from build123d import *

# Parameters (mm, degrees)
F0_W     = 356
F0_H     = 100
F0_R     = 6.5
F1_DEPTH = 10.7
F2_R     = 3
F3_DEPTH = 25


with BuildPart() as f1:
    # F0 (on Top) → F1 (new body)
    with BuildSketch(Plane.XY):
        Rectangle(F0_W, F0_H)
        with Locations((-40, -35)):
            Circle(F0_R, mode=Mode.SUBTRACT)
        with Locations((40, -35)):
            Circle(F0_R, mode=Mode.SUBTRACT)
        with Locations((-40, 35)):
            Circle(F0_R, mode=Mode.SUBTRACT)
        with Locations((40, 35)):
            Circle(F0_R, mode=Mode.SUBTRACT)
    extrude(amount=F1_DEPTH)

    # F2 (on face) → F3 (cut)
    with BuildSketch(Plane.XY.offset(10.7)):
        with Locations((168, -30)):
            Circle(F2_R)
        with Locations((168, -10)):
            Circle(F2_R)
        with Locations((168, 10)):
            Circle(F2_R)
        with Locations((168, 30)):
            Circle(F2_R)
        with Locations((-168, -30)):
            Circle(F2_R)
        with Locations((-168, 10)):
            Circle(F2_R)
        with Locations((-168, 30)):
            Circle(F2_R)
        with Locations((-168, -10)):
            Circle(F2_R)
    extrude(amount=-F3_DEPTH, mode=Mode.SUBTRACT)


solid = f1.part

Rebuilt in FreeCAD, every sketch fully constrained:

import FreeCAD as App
import Part
import Sketcher

V = App.Vector
Q = App.Units.Quantity


def add_polygon(sketch, points):
    """Adds a closed chain of lines whose ends are joined by coincident constraints."""
    first, n = sketch.GeometryCount, len(points)
    for a, b in zip(points, points[1:] + points[:1]):
        sketch.addGeometry(Part.LineSegment(App.Vector(*a, 0), App.Vector(*b, 0)), False)
    for i in range(n):
        sketch.addConstraint(Sketcher.Constraint("Coincident", first + i, 2, first + (i + 1) % n, 1))

doc = App.newDocument("Part")
body = doc.addObject("PartDesign::Body", "Body")

# Sketch on XY plane
sketch1 = doc.addObject("Sketcher::SketchObject", "Sketch")
body.addObject(sketch1)
sketch1.AttachmentSupport = (doc.XY_Plane, [""])
sketch1.MapMode = "FlatFace"
add_polygon(sketch1, [(-178, 50), (-178, -50), (178, -50), (178, 50)])  # lines 0-3
sketch1.addGeometry(Part.Circle(V(-40, -35, 0), V(0, 0, 1), 6), False)  # 4
sketch1.addGeometry(Part.Circle(V(40, -35, 0), V(0, 0, 1), 6), False)  # 5
sketch1.addGeometry(Part.Circle(V(-40, 35, 0), V(0, 0, 1), 6), False)  # 6
sketch1.addGeometry(Part.Circle(V(40, 35, 0), V(0, 0, 1), 6), False)  # 7
sketch1.addConstraint([
    Sketcher.Constraint("Vertical", 0),
    Sketcher.Constraint("Horizontal", 1),
    Sketcher.Constraint("Vertical", 2),
    Sketcher.Constraint("Horizontal", 3),
    Sketcher.Constraint("Equal", 4, 5),
    Sketcher.Constraint("Equal", 5, 6),
    Sketcher.Constraint("Equal", 6, 7),
    Sketcher.Constraint("Symmetric", 5, 3, 6, 3, -1, 1),
    Sketcher.Constraint("Symmetric", 4, 3, 7, 3, -1, 1),
    Sketcher.Constraint("Symmetric", 0, 2, 2, 2, -1, 1),
    Sketcher.Constraint("Symmetric", 4, 3, 5, 3, -2),
    Sketcher.Constraint("Diameter", 4, Q("13 mm")),
    Sketcher.Constraint("DistanceX", 1, 1, 1, 2, Q("356 mm")),
    Sketcher.Constraint("DistanceY", 0, 2, 0, 1, Q("100 mm")),
    Sketcher.Constraint("DistanceX", 4, 3, -1, 1, Q("40 mm")),
    Sketcher.Constraint("DistanceY", 4, 3, -1, 1, Q("35 mm")),
])
pad1 = doc.addObject("PartDesign::Pad", "Pad")
body.addObject(pad1)
pad1.Profile = sketch1
pad1.Length = 10.7

# Sketch on XY plane
sketch2 = doc.addObject("Sketcher::SketchObject", "Sketch001")
body.addObject(sketch2)
sketch2.AttachmentSupport = (doc.XY_Plane, [""])
sketch2.MapMode = "FlatFace"
sketch2.AttachmentOffset = App.Placement(V(0, 0, 10.7), App.Rotation())
sketch2.addGeometry([
    Part.Circle(V(168, -30, 0), V(0, 0, 1), 3),  # 0
    Part.Circle(V(168, -10, 0), V(0, 0, 1), 3),  # 1
    Part.Circle(V(168, 10, 0), V(0, 0, 1), 3),  # 2
    Part.Circle(V(168, 30, 0), V(0, 0, 1), 3),  # 3
    Part.Circle(V(-168, -30, 0), V(0, 0, 1), 3),  # 4
    Part.Circle(V(-168, 10, 0), V(0, 0, 1), 3),  # 5
    Part.Circle(V(-168, 30, 0), V(0, 0, 1), 3),  # 6
    Part.Circle(V(-168, -10, 0), V(0, 0, 1), 3),  # 7
], False)
sketch2.addConstraint([
    Sketcher.Constraint("Equal", 0, 1),
    Sketcher.Constraint("Equal", 1, 2),
    Sketcher.Constraint("Equal", 2, 3),
    Sketcher.Constraint("Equal", 3, 4),
    Sketcher.Constraint("Equal", 4, 5),
    Sketcher.Constraint("Equal", 5, 6),
    Sketcher.Constraint("Equal", 6, 7),
    Sketcher.Constraint("Symmetric", 3, 3, 4, 3, -1, 1),
    Sketcher.Constraint("Symmetric", 1, 3, 5, 3, -1, 1),
    Sketcher.Constraint("Symmetric", 0, 3, 6, 3, -1, 1),
    Sketcher.Constraint("Symmetric", 2, 3, 7, 3, -1, 1),
    Sketcher.Constraint("Symmetric", 0, 3, 4, 3, -2),
    Sketcher.Constraint("Symmetric", 2, 3, 5, 3, -2),
    Sketcher.Constraint("Vertical", 0, 3, 1, 3),
    Sketcher.Constraint("Diameter", 0, Q("6 mm")),
    Sketcher.Constraint("DistanceX", -1, 1, 0, 3, Q("168 mm")),
    Sketcher.Constraint("DistanceY", 0, 3, -1, 1, Q("30 mm")),
    Sketcher.Constraint("DistanceY", 1, 3, -1, 1, Q("10 mm")),
])
pocket1 = doc.addObject("PartDesign::Pocket", "Pocket")
body.addObject(pocket1)
pocket1.Profile = sketch2
pocket1.Length = 25

doc.recompute()
